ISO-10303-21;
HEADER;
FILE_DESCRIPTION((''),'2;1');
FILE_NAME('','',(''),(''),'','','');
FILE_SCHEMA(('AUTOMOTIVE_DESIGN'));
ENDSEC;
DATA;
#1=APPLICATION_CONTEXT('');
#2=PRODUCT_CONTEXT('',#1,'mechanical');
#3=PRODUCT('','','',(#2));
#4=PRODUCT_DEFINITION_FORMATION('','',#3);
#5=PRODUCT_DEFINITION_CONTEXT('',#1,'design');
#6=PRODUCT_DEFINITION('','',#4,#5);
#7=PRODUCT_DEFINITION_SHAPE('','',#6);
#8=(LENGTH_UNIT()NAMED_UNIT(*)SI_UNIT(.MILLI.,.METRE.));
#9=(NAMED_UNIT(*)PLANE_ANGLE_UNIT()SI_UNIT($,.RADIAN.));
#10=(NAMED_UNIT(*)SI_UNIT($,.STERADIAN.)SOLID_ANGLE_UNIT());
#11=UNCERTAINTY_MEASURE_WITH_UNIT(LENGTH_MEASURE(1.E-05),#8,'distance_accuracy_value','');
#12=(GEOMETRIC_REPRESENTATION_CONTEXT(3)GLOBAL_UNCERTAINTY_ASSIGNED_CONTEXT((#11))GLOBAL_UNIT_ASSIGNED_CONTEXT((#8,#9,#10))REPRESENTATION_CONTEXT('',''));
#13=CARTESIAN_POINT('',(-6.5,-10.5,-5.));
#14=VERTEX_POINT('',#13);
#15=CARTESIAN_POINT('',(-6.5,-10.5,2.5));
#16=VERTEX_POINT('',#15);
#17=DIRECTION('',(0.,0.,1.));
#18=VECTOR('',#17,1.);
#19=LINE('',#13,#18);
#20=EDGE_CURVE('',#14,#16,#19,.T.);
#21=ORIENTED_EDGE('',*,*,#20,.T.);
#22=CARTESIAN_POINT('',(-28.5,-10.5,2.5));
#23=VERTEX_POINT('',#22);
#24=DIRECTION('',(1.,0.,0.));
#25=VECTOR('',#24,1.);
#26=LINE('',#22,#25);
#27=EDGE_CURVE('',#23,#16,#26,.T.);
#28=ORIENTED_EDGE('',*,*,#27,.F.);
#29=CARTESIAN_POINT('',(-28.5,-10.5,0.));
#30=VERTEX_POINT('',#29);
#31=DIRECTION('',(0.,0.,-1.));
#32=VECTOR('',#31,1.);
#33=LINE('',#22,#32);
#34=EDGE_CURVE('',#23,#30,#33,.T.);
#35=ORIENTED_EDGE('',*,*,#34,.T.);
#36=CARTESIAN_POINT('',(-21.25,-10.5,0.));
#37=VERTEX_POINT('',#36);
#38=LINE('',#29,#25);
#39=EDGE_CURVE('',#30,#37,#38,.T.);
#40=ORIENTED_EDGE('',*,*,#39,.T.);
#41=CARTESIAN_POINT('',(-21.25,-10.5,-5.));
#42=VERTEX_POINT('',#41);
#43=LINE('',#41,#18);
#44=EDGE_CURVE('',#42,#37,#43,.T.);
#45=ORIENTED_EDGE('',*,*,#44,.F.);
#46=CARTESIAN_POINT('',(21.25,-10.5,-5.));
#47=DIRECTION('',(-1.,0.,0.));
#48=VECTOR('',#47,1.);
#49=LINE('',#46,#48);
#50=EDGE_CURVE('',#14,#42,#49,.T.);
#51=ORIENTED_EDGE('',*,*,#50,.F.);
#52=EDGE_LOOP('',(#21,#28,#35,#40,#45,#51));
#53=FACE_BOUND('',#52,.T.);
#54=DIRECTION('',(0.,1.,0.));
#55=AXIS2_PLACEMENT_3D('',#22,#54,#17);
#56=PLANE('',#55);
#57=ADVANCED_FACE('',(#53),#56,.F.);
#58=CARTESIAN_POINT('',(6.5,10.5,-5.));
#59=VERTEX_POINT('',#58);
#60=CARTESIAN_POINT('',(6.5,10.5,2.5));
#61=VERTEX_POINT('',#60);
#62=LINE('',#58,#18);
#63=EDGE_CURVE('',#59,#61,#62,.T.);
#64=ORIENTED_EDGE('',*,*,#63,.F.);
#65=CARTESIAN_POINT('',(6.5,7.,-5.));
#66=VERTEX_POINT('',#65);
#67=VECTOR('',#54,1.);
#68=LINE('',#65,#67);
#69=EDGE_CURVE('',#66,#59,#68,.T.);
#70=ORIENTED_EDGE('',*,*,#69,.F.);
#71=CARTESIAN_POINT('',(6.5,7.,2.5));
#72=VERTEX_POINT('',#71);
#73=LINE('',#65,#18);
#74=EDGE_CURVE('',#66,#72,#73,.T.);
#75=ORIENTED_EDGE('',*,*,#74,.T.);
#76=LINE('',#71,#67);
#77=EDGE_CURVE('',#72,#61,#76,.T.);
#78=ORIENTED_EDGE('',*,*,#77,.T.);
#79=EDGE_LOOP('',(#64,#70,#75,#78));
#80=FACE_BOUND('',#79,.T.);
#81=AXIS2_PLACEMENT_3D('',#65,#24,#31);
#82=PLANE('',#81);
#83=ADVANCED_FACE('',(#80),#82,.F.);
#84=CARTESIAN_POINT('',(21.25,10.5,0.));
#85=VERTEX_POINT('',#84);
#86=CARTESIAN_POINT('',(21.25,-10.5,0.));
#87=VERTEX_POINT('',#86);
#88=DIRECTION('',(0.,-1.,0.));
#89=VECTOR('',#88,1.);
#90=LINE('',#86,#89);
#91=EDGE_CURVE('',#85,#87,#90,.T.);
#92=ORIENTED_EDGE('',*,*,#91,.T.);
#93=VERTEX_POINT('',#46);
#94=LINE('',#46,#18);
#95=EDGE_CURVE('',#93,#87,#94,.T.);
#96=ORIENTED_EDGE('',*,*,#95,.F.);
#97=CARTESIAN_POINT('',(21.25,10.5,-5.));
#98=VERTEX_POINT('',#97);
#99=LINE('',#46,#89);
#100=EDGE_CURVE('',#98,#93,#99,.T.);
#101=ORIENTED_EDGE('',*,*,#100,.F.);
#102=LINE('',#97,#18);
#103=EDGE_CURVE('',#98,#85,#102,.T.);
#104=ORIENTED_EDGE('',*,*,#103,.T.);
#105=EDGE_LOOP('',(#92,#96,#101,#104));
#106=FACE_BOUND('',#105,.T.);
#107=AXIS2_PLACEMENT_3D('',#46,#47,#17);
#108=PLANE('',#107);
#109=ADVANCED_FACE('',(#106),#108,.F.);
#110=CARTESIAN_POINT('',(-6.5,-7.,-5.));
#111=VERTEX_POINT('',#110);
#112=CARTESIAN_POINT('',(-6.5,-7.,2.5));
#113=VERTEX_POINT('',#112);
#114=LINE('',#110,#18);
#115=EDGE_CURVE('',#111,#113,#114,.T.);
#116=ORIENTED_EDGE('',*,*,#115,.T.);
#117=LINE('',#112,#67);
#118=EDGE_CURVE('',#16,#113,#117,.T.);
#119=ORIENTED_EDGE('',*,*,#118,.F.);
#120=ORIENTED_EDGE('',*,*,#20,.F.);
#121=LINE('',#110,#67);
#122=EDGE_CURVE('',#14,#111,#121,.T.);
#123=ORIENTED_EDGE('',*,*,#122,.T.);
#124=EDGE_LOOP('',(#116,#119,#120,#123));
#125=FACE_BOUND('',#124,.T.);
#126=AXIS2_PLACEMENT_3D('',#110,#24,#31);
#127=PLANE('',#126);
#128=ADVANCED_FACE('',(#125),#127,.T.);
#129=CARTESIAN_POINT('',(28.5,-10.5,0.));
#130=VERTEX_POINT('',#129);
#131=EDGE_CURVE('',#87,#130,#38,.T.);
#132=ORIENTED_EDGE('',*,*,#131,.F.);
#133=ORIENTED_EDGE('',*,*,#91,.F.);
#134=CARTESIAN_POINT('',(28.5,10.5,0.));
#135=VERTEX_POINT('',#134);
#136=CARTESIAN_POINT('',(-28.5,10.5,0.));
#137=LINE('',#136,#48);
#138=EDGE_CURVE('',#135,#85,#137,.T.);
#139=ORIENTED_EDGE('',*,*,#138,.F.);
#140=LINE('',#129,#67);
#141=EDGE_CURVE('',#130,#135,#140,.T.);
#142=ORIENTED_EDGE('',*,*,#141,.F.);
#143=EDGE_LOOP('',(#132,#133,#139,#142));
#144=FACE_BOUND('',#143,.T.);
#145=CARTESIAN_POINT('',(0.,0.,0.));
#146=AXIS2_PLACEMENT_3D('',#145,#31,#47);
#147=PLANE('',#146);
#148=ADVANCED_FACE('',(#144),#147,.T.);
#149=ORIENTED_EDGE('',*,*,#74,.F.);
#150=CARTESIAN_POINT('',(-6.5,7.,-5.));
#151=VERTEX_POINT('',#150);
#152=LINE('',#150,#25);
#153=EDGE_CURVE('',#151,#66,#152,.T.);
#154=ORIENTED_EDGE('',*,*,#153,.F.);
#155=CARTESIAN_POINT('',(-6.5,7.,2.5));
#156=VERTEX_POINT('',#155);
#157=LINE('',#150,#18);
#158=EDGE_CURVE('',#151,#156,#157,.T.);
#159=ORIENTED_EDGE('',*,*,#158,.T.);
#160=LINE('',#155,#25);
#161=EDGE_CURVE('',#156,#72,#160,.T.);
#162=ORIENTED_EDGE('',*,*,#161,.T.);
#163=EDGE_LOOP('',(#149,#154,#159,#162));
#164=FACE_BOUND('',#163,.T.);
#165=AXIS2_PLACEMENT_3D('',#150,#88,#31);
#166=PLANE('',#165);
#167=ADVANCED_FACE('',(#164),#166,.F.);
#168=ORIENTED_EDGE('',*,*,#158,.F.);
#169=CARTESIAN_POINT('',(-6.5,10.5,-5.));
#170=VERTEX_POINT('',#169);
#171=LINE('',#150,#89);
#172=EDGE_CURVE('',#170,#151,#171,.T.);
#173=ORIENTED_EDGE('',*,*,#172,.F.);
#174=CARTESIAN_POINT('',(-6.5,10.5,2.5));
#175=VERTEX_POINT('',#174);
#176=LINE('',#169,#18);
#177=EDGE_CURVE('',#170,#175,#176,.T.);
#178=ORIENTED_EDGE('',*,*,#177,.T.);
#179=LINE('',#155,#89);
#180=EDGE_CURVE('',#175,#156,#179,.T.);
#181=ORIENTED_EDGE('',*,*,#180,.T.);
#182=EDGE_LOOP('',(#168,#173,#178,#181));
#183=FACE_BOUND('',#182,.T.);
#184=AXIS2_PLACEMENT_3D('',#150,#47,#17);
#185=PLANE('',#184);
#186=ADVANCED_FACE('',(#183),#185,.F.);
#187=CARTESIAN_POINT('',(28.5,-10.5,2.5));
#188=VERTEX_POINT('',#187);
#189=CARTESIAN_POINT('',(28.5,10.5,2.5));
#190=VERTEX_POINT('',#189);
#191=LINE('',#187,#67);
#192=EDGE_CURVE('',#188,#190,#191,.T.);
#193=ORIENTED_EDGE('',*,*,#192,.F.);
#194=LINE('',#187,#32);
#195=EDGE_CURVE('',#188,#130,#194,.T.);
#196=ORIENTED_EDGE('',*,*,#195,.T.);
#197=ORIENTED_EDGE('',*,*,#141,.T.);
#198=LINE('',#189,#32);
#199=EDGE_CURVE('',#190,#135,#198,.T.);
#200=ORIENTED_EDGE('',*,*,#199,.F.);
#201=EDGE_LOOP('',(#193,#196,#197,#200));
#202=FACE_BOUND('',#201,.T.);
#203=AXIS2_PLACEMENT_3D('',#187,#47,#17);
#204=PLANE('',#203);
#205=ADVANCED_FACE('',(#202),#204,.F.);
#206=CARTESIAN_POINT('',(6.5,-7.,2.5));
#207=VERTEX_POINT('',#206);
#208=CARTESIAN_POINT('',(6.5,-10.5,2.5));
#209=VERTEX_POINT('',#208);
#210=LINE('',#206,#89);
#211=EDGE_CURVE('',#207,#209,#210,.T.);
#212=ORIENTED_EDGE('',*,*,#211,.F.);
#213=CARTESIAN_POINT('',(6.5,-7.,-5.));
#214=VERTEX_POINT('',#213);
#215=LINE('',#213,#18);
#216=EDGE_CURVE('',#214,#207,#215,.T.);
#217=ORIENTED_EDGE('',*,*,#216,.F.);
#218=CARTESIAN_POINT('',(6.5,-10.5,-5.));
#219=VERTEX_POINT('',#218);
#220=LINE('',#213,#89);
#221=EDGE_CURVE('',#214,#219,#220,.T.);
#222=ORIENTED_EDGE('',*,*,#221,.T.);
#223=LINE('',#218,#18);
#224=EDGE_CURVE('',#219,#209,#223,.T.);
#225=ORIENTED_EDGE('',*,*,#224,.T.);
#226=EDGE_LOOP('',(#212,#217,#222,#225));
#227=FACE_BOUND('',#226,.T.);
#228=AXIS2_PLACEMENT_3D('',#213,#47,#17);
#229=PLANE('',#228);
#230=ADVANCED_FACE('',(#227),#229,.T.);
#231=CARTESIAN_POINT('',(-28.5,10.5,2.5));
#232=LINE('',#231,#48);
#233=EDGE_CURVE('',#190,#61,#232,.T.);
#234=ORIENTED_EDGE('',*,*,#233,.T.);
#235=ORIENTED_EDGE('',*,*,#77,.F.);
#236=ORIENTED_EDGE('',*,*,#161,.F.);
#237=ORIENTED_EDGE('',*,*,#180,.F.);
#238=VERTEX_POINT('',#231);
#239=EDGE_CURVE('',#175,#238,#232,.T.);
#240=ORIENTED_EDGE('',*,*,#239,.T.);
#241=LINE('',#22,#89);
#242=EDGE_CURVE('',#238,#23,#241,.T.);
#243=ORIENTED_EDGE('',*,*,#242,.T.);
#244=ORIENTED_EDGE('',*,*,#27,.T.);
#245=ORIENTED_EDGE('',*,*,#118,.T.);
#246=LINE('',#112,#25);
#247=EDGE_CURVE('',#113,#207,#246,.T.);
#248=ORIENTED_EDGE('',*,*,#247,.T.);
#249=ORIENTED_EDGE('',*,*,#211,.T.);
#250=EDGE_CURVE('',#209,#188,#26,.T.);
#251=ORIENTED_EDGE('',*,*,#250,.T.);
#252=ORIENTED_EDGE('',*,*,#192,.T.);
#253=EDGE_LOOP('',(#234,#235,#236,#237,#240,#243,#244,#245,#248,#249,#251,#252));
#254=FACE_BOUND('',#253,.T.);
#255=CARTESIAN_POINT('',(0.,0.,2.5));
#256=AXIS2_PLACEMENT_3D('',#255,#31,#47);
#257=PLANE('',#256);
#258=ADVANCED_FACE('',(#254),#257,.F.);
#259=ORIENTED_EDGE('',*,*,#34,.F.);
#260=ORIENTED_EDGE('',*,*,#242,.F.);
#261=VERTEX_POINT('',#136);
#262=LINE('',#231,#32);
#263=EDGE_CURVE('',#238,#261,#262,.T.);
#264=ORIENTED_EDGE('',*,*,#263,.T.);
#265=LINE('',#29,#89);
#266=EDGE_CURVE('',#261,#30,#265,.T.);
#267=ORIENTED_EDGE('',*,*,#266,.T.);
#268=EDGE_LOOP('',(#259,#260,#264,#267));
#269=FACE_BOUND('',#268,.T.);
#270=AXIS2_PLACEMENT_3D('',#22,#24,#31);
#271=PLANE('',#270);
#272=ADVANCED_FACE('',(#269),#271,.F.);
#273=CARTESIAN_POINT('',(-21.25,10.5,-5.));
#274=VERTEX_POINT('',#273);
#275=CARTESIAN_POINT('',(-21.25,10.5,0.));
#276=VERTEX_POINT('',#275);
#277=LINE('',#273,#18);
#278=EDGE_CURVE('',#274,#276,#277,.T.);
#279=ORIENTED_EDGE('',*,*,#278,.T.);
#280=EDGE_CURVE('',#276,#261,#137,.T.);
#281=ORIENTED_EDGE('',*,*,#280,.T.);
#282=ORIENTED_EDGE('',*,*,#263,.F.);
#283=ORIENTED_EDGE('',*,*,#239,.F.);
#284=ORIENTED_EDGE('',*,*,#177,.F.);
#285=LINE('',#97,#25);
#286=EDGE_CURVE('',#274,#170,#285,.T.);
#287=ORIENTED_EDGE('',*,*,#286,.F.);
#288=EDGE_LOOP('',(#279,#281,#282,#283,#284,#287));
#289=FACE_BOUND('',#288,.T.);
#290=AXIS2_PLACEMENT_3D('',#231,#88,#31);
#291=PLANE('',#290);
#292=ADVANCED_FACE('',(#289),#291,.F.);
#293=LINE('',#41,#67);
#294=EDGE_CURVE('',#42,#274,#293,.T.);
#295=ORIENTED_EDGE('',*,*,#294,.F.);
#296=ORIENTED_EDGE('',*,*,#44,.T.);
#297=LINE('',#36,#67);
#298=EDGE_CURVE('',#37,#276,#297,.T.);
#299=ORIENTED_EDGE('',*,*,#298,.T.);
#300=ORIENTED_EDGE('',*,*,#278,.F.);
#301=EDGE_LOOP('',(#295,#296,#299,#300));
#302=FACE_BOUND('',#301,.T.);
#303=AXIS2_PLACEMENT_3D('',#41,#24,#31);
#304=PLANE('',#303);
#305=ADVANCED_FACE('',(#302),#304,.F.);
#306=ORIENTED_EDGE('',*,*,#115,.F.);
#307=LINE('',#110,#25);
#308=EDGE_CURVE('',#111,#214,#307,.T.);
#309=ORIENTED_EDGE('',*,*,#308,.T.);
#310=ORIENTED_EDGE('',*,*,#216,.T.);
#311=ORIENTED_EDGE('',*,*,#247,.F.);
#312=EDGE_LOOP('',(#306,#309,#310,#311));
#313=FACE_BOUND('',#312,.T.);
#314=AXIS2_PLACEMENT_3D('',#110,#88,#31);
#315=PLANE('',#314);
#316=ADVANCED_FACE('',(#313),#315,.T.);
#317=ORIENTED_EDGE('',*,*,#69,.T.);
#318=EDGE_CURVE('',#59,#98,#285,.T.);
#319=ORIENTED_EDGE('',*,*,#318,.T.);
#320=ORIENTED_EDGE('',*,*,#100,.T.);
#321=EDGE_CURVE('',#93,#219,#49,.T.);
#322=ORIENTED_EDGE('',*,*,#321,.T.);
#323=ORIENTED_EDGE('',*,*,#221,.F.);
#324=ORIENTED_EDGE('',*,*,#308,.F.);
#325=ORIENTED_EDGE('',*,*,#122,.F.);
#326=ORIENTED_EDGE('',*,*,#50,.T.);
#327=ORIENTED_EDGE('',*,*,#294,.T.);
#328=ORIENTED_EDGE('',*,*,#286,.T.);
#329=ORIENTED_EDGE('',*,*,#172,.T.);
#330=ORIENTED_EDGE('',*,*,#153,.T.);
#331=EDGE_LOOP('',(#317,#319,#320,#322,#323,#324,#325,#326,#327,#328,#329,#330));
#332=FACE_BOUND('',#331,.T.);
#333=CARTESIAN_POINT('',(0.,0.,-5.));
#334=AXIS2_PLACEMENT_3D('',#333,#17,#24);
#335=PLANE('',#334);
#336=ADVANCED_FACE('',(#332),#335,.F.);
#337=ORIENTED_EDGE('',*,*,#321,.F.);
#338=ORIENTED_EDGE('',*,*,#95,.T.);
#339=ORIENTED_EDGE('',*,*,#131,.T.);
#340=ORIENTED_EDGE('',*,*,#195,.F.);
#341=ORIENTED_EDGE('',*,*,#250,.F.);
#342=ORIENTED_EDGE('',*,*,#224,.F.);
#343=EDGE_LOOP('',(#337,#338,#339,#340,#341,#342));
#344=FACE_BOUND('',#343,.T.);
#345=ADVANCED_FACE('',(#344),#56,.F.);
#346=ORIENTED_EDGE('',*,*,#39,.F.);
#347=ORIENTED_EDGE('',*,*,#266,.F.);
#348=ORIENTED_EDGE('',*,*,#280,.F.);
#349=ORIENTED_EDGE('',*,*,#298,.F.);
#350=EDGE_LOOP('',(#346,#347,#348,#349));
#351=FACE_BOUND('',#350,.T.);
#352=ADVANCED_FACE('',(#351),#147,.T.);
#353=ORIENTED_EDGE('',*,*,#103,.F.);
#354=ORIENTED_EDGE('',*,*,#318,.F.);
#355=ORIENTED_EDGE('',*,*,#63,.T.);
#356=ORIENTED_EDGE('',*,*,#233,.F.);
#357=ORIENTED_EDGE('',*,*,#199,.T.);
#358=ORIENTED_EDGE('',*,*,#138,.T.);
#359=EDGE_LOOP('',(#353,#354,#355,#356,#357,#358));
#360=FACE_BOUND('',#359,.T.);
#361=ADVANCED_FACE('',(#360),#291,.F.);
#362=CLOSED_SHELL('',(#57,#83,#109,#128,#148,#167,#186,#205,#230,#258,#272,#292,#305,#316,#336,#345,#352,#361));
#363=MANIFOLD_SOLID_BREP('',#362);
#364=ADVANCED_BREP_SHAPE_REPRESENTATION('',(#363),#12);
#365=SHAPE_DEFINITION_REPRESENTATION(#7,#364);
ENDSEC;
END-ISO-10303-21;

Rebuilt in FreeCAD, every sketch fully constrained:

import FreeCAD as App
import Part
import Sketcher

doc = App.newDocument("Part")
params = doc.addObject("Spreadsheet::Sheet", "Params")
for row, (alias, value) in enumerate([
    ("sketch1_width", "57 mm"),
    ("sketch1_height", "21 mm"),
    ("pad1_length", "2.5 mm"),
    ("sketch2_height", "21 mm"),
    ("sketch2_width", "42.5 mm"),
    ("pad2_length", "5 mm"),
    ("sketch3_width", "13 mm"),
    ("sketch3_height", "3.5 mm"),
], start=1):
    params.set(f"A{row}", alias)
    params.set(f"B{row}", "=" + value)
    params.setAlias(f"B{row}", alias)

body = doc.addObject("PartDesign::Body", "Body")

sketch1 = doc.addObject("Sketcher::SketchObject", "Sketch")
body.addObject(sketch1)
sketch1.AttachmentSupport = (doc.XY_Plane, [""])
sketch1.MapMode = "FlatFace"
sketch1.addGeometry([
    Part.LineSegment(App.Vector(-28.5, 10.5, 0), App.Vector(-28.5, -10.5, 0)),
    Part.LineSegment(App.Vector(-28.5, -10.5, 0), App.Vector(28.5, -10.5, 0)),
    Part.LineSegment(App.Vector(28.5, -10.5, 0), App.Vector(28.5, 10.5, 0)),
    Part.LineSegment(App.Vector(28.5, 10.5, 0), App.Vector(-28.5, 10.5, 0)),
], False)
sketch1.addConstraint([
    Sketcher.Constraint("Coincident", 0, 2, 1, 1),
    Sketcher.Constraint("Coincident", 1, 2, 2, 1),
    Sketcher.Constraint("Coincident", 2, 2, 3, 1),
    Sketcher.Constraint("Coincident", 3, 2, 0, 1),
    Sketcher.Constraint("Vertical", 0),
    Sketcher.Constraint("Horizontal", 1),
    Sketcher.Constraint("Vertical", 2),
    Sketcher.Constraint("Horizontal", 3),
    Sketcher.Constraint("Symmetric", 0, 2, 2, 2, -1, 1),
    Sketcher.Constraint("DistanceX", 1, 1, 1, 2, 57.0),
    Sketcher.Constraint("DistanceY", 0, 2, 0, 1, 21.0),
])
sketch1.setExpression("Constraints[9]", "Params.sketch1_width")
sketch1.setExpression("Constraints[10]", "Params.sketch1_height")
pad1 = doc.addObject("PartDesign::Pad", "Pad")
body.addObject(pad1)
pad1.Profile = sketch1
pad1.setExpression("Length", "Params.pad1_length")

sketch2 = doc.addObject("Sketcher::SketchObject", "Sketch001")
body.addObject(sketch2)
sketch2.AttachmentSupport = (doc.XY_Plane, [""])
sketch2.MapMode = "FlatFace"
sketch2.addGeometry([
    Part.LineSegment(App.Vector(21.25, 10.5, 0), App.Vector(21.25, -10.5, 0)),
    Part.LineSegment(App.Vector(21.25, -10.5, 0), App.Vector(-21.25, -10.5, 0)),
    Part.LineSegment(App.Vector(-21.25, -10.5, 0), App.Vector(-21.25, 10.5, 0)),
    Part.LineSegment(App.Vector(-21.25, 10.5, 0), App.Vector(21.25, 10.5, 0)),
], False)
sketch2.addConstraint([
    Sketcher.Constraint("Coincident", 0, 2, 1, 1),
    Sketcher.Constraint("Coincident", 1, 2, 2, 1),
    Sketcher.Constraint("Coincident", 2, 2, 3, 1),
    Sketcher.Constraint("Coincident", 3, 2, 0, 1),
    Sketcher.Constraint("Vertical", 0),
    Sketcher.Constraint("Horizontal", 1),
    Sketcher.Constraint("Vertical", 2),
    Sketcher.Constraint("Horizontal", 3),
    Sketcher.Constraint("Symmetric", 0, 2, 2, 2, -1, 1),
    Sketcher.Constraint("DistanceY", 0, 2, 0, 1, 21.0),
    Sketcher.Constraint("DistanceX", 1, 2, 1, 1, 42.5),
])
sketch2.setExpression("Constraints[9]", "Params.sketch2_height")
sketch2.setExpression("Constraints[10]", "Params.sketch2_width")
pad2 = doc.addObject("PartDesign::Pad", "Pad001")
body.addObject(pad2)
pad2.Profile = sketch2
pad2.setExpression("Length", "Params.pad2_length")
pad2.Reversed = True

sketch3 = doc.addObject("Sketcher::SketchObject", "Sketch002")
body.addObject(sketch3)
sketch3.AttachmentSupport = (doc.XY_Plane, [""])
sketch3.MapMode = "FlatFace"
sketch3.AttachmentOffset = App.Placement(App.Vector(0, 0, 2.5), App.Rotation())
sketch3.addGeometry([
    Part.LineSegment(App.Vector(-6.5, 10.5, 0), App.Vector(-6.5, 7, 0)),
    Part.LineSegment(App.Vector(-6.5, 7, 0), App.Vector(6.5, 7, 0)),
    Part.LineSegment(App.Vector(6.5, 7, 0), App.Vector(6.5, 10.5, 0)),
    Part.LineSegment(App.Vector(6.5, 10.5, 0), App.Vector(-6.5, 10.5, 0)),
], False)
sketch3.addConstraint([
    Sketcher.Constraint("Coincident", 0, 2, 1, 1),
    Sketcher.Constraint("Coincident", 1, 2, 2, 1),
    Sketcher.Constraint("Coincident", 2, 2, 3, 1),
    Sketcher.Constraint("Coincident", 3, 2, 0, 1),
    Sketcher.Constraint("Vertical", 0),
    Sketcher.Constraint("Horizontal", 1),
    Sketcher.Constraint("Vertical", 2),
    Sketcher.Constraint("Horizontal", 3),
    Sketcher.Constraint("DistanceX", 1, 1, 1, 2, 13.0),
    Sketcher.Constraint("DistanceY", 0, 2, 0, 1, 3.5),
    Sketcher.Constraint("DistanceY", -1, 1, 0, 2, 7.0),
    Sketcher.Constraint("DistanceX", 0, 2, -1, 1, 6.5),
])
sketch3.setExpression("Constraints[8]", "Params.sketch3_width")
sketch3.setExpression("Constraints[9]", "Params.sketch3_height")
pocket1 = doc.addObject("PartDesign::Pocket", "Pocket")
body.addObject(pocket1)
pocket1.Profile = sketch3
pocket1.Type = "ThroughAll"
doc.recompute()

mirrored = doc.addObject("PartDesign::Mirrored", "Mirrored")
body.addObject(mirrored)
mirrored.Originals = [pocket1]
mirrored.MirrorPlane = (doc.XZ_Plane, [""])
body.Tip = mirrored

doc.recompute()
